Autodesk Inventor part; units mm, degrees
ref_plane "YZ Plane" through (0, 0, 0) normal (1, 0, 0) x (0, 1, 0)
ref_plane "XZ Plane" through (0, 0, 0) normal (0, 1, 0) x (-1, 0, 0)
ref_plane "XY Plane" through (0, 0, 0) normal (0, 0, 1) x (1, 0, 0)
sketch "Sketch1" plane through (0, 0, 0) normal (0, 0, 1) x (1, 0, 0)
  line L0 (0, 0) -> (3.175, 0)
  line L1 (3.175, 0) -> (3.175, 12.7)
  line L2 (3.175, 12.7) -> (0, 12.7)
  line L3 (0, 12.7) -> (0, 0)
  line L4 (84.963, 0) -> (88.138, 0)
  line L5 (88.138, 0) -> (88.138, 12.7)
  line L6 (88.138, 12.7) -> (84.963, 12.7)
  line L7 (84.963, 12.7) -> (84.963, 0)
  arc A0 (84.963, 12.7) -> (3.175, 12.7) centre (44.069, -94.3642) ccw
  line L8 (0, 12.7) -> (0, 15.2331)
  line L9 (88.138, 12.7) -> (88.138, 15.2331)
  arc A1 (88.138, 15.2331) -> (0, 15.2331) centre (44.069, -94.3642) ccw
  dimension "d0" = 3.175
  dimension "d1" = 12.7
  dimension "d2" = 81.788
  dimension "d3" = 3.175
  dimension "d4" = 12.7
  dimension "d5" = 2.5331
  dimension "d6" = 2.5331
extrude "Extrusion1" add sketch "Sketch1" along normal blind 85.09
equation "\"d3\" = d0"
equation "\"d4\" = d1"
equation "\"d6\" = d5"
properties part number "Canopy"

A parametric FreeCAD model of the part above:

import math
import FreeCAD as App
import Part
import Sketcher

V = App.Vector
Q = App.Units.Quantity

doc = App.newDocument("Part")
params = doc.addObject("Spreadsheet::Sheet", "Params")
for row, (alias, value) in enumerate([
    ("sketch1_height", "0.5 in"),
    ("sketch1_width", "0.125 in"),
    ("pad1_length", "3.35 in"),
], start=1):
    params.set(f"A{row}", alias)
    params.set(f"B{row}", "=" + value)
    params.setAlias(f"B{row}", alias)

body = doc.addObject("PartDesign::Body", "Body")

sketch1 = doc.addObject("Sketcher::SketchObject", "Sketch")
body.addObject(sketch1)
sketch1.AttachmentSupport = (doc.XY_Plane, [""])
sketch1.MapMode = "FlatFace"
sketch1.addGeometry([
    Part.LineSegment(V(0, 0, 0), V(3.2, 0, 0)),
    Part.LineSegment(V(3.2, 0, 0), V(3.2, 12.7, 0)),
    Part.ArcOfCircle(Part.Circle(V(44.1, -94.4, 0), V(0, 0, 1), 114.6), math.radians(69), math.radians(111)),
    Part.LineSegment(V(85, 12.7, 0), V(85, 0, 0)),
    Part.LineSegment(V(85, 0, 0), V(88.1, 0, 0)),
    Part.LineSegment(V(88.1, 0, 0), V(88.1, 15.2, 0)),
    Part.ArcOfCircle(Part.Circle(V(44.1, -94.4, 0), V(0, 0, 1), 118.1), math.radians(68), math.radians(112)),
    Part.LineSegment(V(0, 15.2, 0), V(0, 0, 0)),
], False)
sketch1.addConstraint([
    Sketcher.Constraint("Coincident", 0, 2, 1, 1),
    Sketcher.Constraint("Coincident", 1, 2, 2, 2),
    Sketcher.Constraint("Coincident", 2, 1, 3, 1),
    Sketcher.Constraint("Coincident", 3, 2, 4, 1),
    Sketcher.Constraint("Coincident", 4, 2, 5, 1),
    Sketcher.Constraint("Coincident", 5, 2, 6, 1),
    Sketcher.Constraint("Coincident", 6, 2, 7, 1),
    Sketcher.Constraint("Coincident", 7, 2, 0, 1),
    Sketcher.Constraint("Horizontal", 0),
    Sketcher.Constraint("Vertical", 1),
    Sketcher.Constraint("Vertical", 3),
    Sketcher.Constraint("Horizontal", 4),
    Sketcher.Constraint("Vertical", 5),
    Sketcher.Constraint("Vertical", 7),
    Sketcher.Constraint("Coincident", 7, 2, -1, 1),
    Sketcher.Constraint("Coincident", 6, 3, 2, 3),
    Sketcher.Constraint("PointOnObject", 3, 2, -1),
    Sketcher.Constraint("Horizontal", 1, 2, 2, 1),
    Sketcher.Constraint("Horizontal", 5, 2, 6, 2),
    Sketcher.Constraint("DistanceY", 1, 1, 1, 2, Q("0.5 in")),
    Sketcher.Constraint("DistanceX", 0, 1, 0, 2, Q("0.125 in")),
    Sketcher.Constraint("DistanceX", 1, 2, 2, 1, Q("3.22 in")),
    Sketcher.Constraint("Radius", 2, Q("114.6083 mm")),
    Sketcher.Constraint("Radius", 6, Q("4.6506102 in")),
])
sketch1.setExpression("Constraints[19]", "Params.sketch1_height")
sketch1.setExpression("Constraints[20]", "Params.sketch1_width")
pad1 = doc.addObject("PartDesign::Pad", "Pad")
body.addObject(pad1)
pad1.Profile = sketch1
pad1.setExpression("Length", "Params.pad1_length")

doc.recompute()
